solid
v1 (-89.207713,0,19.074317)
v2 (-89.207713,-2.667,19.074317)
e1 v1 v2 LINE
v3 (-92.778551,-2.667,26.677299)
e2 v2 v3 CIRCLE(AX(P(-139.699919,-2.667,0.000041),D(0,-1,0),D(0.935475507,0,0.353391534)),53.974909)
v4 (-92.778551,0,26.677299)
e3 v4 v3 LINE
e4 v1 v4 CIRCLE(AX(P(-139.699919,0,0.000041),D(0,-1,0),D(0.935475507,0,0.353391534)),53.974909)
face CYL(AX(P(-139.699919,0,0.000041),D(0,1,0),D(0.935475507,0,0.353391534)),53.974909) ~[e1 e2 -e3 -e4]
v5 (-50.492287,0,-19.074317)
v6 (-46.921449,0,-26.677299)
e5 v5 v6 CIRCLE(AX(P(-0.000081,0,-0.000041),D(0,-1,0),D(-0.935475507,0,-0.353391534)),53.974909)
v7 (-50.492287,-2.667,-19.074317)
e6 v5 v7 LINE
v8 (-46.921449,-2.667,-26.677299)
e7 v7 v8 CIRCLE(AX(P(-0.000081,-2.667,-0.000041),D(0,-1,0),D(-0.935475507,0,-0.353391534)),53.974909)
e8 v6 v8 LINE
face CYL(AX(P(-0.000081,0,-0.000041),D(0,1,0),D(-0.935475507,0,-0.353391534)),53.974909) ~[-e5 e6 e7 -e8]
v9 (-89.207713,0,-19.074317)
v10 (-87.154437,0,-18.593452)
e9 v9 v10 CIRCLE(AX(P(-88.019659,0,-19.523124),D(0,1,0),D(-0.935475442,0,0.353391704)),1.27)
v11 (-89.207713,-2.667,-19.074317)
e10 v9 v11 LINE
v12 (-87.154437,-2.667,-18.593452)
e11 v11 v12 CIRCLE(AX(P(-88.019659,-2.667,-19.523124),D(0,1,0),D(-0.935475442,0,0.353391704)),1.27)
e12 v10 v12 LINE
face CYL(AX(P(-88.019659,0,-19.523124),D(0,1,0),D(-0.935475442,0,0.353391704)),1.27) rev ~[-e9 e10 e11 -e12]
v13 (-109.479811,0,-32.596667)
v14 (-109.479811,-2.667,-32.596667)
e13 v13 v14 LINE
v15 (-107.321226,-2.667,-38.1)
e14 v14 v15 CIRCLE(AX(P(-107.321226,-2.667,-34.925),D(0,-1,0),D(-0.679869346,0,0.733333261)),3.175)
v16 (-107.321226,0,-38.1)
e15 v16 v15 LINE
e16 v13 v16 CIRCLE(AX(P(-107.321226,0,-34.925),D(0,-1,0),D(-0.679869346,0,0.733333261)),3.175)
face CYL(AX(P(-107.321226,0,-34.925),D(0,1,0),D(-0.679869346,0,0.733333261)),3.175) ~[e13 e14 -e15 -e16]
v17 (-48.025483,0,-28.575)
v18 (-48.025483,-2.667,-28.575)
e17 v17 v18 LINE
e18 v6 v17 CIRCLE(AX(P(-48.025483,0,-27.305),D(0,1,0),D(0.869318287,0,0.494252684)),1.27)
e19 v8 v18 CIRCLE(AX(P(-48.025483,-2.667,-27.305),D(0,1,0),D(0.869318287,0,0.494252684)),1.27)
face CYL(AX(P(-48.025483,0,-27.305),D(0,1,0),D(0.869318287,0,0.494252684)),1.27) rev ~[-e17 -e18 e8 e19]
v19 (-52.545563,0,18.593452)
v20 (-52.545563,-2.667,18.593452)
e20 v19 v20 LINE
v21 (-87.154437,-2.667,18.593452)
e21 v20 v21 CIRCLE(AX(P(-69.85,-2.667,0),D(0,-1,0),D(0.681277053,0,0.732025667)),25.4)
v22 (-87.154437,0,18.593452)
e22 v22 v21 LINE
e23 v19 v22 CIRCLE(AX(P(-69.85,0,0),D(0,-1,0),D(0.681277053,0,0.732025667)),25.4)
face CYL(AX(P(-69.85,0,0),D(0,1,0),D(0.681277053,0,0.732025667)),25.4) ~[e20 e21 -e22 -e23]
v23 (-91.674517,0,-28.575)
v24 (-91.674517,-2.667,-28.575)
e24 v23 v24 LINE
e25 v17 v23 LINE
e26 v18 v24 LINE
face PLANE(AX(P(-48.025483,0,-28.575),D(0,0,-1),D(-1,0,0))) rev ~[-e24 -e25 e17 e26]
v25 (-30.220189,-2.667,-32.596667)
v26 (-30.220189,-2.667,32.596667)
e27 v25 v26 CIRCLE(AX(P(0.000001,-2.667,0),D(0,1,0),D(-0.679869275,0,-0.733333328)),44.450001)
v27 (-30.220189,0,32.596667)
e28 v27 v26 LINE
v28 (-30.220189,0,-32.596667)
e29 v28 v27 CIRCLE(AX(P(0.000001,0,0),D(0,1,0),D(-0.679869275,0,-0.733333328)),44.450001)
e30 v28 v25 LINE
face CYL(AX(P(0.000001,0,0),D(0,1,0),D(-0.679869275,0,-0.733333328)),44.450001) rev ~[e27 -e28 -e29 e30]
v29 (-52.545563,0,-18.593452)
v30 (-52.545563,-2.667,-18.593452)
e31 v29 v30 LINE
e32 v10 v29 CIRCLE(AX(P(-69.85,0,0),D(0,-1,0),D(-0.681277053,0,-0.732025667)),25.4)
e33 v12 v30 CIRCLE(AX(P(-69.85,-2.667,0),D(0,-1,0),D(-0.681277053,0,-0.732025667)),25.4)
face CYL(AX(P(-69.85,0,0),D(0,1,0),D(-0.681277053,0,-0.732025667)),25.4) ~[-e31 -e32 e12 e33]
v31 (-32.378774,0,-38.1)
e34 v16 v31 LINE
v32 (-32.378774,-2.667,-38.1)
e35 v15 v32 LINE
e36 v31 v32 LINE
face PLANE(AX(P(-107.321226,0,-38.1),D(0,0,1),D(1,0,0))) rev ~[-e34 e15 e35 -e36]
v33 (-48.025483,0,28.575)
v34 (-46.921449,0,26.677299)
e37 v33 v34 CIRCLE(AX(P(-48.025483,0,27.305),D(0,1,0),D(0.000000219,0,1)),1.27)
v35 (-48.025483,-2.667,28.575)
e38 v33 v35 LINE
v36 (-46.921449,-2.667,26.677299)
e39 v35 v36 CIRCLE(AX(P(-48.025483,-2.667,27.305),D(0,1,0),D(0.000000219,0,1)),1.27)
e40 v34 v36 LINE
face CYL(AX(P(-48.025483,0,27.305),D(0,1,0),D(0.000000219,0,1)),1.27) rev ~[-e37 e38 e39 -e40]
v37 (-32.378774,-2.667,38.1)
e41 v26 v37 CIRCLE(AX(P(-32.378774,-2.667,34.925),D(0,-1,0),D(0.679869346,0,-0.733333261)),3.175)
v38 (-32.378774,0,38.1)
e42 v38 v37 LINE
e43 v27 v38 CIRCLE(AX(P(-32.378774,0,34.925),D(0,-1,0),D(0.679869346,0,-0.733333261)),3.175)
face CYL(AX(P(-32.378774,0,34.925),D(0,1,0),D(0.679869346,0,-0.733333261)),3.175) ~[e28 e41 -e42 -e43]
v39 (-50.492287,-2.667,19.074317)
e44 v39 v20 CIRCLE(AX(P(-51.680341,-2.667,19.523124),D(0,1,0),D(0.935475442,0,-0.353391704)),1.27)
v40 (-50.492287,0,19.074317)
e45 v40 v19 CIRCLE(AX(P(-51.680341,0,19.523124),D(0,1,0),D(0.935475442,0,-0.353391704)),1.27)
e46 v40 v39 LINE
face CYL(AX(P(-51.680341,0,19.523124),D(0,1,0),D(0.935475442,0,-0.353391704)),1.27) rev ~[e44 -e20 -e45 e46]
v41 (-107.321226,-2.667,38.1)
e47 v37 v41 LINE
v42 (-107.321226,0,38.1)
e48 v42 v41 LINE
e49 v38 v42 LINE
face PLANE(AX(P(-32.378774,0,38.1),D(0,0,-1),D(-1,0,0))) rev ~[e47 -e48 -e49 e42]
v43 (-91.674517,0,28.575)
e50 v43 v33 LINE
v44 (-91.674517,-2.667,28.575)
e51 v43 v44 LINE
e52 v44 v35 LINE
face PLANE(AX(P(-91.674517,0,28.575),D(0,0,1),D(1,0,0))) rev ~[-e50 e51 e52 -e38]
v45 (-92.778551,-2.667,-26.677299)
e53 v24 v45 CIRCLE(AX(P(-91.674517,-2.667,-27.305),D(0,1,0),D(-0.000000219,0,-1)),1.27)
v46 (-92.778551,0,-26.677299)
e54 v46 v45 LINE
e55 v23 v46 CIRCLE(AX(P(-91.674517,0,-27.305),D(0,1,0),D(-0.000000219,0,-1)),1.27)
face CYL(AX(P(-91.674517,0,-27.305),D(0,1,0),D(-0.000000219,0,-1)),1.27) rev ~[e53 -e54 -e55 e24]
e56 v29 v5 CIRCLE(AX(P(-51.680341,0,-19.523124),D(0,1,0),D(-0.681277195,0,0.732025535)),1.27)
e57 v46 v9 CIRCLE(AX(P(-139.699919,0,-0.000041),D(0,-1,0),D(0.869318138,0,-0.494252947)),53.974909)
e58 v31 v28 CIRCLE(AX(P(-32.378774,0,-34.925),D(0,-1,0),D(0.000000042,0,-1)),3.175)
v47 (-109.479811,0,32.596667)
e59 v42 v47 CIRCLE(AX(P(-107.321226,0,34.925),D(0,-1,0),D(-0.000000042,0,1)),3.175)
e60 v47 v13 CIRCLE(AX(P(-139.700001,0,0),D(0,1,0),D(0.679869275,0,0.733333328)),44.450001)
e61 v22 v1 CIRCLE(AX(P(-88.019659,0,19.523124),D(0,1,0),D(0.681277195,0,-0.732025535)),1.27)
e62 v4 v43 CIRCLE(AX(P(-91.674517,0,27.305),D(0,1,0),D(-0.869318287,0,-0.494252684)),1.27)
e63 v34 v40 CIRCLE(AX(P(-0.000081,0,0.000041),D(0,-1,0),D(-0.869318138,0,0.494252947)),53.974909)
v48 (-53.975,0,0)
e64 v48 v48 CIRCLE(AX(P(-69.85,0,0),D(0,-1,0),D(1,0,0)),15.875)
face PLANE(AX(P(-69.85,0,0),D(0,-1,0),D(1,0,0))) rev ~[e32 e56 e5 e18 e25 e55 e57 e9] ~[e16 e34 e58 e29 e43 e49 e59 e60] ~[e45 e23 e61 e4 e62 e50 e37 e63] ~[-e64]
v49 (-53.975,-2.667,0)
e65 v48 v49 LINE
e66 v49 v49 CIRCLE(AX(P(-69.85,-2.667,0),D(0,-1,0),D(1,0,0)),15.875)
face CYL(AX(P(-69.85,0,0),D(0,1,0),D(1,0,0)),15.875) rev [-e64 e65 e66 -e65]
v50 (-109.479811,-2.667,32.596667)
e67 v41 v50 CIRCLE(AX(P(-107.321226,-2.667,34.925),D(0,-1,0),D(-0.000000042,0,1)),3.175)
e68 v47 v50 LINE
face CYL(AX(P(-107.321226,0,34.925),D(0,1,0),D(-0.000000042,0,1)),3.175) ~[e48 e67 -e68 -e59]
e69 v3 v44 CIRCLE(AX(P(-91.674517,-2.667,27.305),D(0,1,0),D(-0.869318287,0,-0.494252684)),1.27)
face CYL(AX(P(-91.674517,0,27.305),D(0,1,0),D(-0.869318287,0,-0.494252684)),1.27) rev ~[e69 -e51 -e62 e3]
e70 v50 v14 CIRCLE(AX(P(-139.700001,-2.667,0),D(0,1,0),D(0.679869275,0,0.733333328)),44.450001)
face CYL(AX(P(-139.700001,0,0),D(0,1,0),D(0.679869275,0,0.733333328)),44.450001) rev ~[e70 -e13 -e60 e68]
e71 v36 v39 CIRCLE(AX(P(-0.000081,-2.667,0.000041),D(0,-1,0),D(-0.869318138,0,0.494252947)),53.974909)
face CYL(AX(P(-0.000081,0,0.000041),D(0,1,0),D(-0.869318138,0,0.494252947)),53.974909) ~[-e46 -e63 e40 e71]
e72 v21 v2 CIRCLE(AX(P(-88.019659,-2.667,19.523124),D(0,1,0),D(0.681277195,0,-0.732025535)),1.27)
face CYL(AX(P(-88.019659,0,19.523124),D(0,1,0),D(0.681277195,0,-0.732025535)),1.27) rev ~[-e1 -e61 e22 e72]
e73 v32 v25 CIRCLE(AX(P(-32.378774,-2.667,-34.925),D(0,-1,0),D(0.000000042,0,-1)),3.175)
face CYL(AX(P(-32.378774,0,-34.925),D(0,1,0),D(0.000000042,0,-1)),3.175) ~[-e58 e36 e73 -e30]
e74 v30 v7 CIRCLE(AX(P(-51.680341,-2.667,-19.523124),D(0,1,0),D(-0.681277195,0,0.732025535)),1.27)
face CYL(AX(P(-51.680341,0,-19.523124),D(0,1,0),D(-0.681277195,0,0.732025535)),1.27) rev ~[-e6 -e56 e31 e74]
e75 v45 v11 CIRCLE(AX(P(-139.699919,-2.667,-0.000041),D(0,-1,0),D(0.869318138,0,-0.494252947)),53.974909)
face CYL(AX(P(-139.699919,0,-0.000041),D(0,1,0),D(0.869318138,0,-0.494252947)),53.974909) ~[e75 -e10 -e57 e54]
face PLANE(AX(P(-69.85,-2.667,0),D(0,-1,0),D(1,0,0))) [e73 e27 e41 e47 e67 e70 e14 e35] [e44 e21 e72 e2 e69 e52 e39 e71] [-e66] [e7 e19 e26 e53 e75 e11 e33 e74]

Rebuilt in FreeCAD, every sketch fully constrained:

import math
import FreeCAD as App
import Part
import Sketcher

V = App.Vector
Q = App.Units.Quantity

doc = App.newDocument("Part")
body = doc.addObject("PartDesign::Body", "Body")

# Sketch on XZ plane
sketch1 = body.newObject("Sketcher::SketchObject", "Sketch")
sketch1.AttachmentSupport = (doc.getObject("XZ_Plane"), [""])
sketch1.MapMode = "FlatFace"
sketch1.addGeometry([
    Part.LineSegment(V(-32.378774, 38.1, 0), V(-107.321226, 38.1, 0)),  # 0
    Part.ArcOfCircle(Part.Circle(V(-107.321226, 34.925, 0), V(0, 0, 1), 3.175), math.radians(90.000002), math.radians(227.166566)),  # 1
    Part.ArcOfCircle(Part.Circle(V(-139.700001, 0, 0), V(0, 0, 1), 44.450001), math.radians(-47.166571), math.radians(47.166571)),  # 2
    Part.ArcOfCircle(Part.Circle(V(-107.321226, -34.925, 0), V(0, 0, 1), 3.175), math.radians(132.833434), math.radians(269.999998)),  # 3
    Part.LineSegment(V(-107.321226, -38.1, 0), V(-32.378774, -38.1, 0)),  # 4
    Part.ArcOfCircle(Part.Circle(V(-32.378774, -34.925, 0), V(0, 0, 1), 3.175), math.radians(-89.999998), math.radians(47.166566)),  # 5
    Part.ArcOfCircle(Part.Circle(V(0.000001, 0, 0), V(0, 0, 1), 44.450001), math.radians(132.833429), math.radians(227.166571)),  # 6
    Part.ArcOfCircle(Part.Circle(V(-32.378774, 34.925, 0), V(0, 0, 1), 3.175), math.radians(-47.166566), math.radians(89.999998)),  # 7
    Part.ArcOfCircle(Part.Circle(V(-88.019659, -19.523124, 0), V(0, 0, 1), 1.27), math.radians(47.056472), math.radians(159.305092)),  # 8
    Part.ArcOfCircle(Part.Circle(V(-69.85, 0, 0), V(0, 0, 1), 25.4), math.radians(-132.943517), math.radians(-47.056483)),  # 9
    Part.ArcOfCircle(Part.Circle(V(-51.680341, -19.523124, 0), V(0, 0, 1), 1.27), math.radians(20.694908), math.radians(132.943528)),  # 10
    Part.ArcOfCircle(Part.Circle(V(-0.000081, -0.000041, 0), V(0, 0, 1), 53.974909), math.radians(-159.305103), math.radians(-150.379499)),  # 11
    Part.ArcOfCircle(Part.Circle(V(-48.025483, -27.305, 0), V(0, 0, 1), 1.27), math.radians(-89.999987), math.radians(29.620484)),  # 12
    Part.LineSegment(V(-48.025483, -28.575, 0), V(-91.674517, -28.575, 0)),  # 13
    Part.ArcOfCircle(Part.Circle(V(-91.674517, -27.305, 0), V(0, 0, 1), 1.27), math.radians(150.379516), math.radians(269.999987)),  # 14
    Part.ArcOfCircle(Part.Circle(V(-139.699919, -0.000041, 0), V(0, 0, 1), 53.974909), math.radians(-29.620501), math.radians(-20.694897)),  # 15
    Part.ArcOfCircle(Part.Circle(V(-139.699919, 0.000041, 0), V(0, 0, 1), 53.974909), math.radians(20.694897), math.radians(29.620501)),  # 16
    Part.ArcOfCircle(Part.Circle(V(-91.674517, 27.305, 0), V(0, 0, 1), 1.27), math.radians(90.000013), math.radians(209.620484)),  # 17
    Part.LineSegment(V(-91.674517, 28.575, 0), V(-48.025483, 28.575, 0)),  # 18
    Part.ArcOfCircle(Part.Circle(V(-48.025483, 27.305, 0), V(0, 0, 1), 1.27), math.radians(-29.620484), math.radians(89.999987)),  # 19
    Part.ArcOfCircle(Part.Circle(V(-0.000081, 0.000041, 0), V(0, 0, 1), 53.974909), math.radians(150.379499), math.radians(159.305103)),  # 20
    Part.ArcOfCircle(Part.Circle(V(-51.680341, 19.523124, 0), V(0, 0, 1), 1.27), math.radians(-132.943528), math.radians(-20.694908)),  # 21
    Part.ArcOfCircle(Part.Circle(V(-69.85, 0, 0), V(0, 0, 1), 25.4), math.radians(47.056483), math.radians(132.943517)),  # 22
    Part.ArcOfCircle(Part.Circle(V(-88.019659, 19.523124, 0), V(0, 0, 1), 1.27), math.radians(-159.305092), math.radians(-47.056472)),  # 23
    Part.Circle(V(-69.85, 0, 0), V(0, 0, 1), 15.875),  # 24
], False)
sketch1.addConstraint([
    Sketcher.Constraint("Tangent", 0, 2, 1, 1),
    Sketcher.Constraint("Tangent", 1, 2, 2, 2),
    Sketcher.Constraint("Tangent", 2, 1, 3, 1),
    Sketcher.Constraint("Tangent", 3, 2, 4, 1),
    Sketcher.Constraint("Tangent", 4, 2, 5, 1),
    Sketcher.Constraint("Tangent", 5, 2, 6, 2),
    Sketcher.Constraint("Tangent", 6, 1, 7, 1),
    Sketcher.Constraint("Tangent", 7, 2, 0, 1),
    Sketcher.Constraint("Tangent", 8, 1, 9, 1),
    Sketcher.Constraint("Tangent", 9, 2, 10, 2),
    Sketcher.Constraint("Tangent", 10, 1, 11, 1),
    Sketcher.Constraint("Tangent", 11, 2, 12, 2),
    Sketcher.Constraint("Tangent", 12, 1, 13, 1),
    Sketcher.Constraint("Tangent", 13, 2, 14, 2),
    Sketcher.Constraint("Tangent", 14, 1, 15, 1),
    Sketcher.Constraint("Tangent", 15, 2, 8, 2),
    Sketcher.Constraint("Tangent", 16, 2, 17, 2),
    Sketcher.Constraint("Tangent", 17, 1, 18, 1),
    Sketcher.Constraint("Tangent", 18, 2, 19, 2),
    Sketcher.Constraint("Tangent", 19, 1, 20, 1),
    Sketcher.Constraint("Tangent", 20, 2, 21, 2),
    Sketcher.Constraint("Tangent", 21, 1, 22, 1),
    Sketcher.Constraint("Tangent", 22, 2, 23, 2),
    Sketcher.Constraint("Tangent", 23, 1, 16, 1),
    Sketcher.Constraint("Horizontal", 0),
    Sketcher.Constraint("Horizontal", 4),
    Sketcher.Constraint("Horizontal", 13),
    Sketcher.Constraint("Horizontal", 18),
    Sketcher.Constraint("Coincident", 6, 3, -1, 1),
    Sketcher.Constraint("Coincident", 22, 3, 9, 3),
    Sketcher.Constraint("Coincident", 24, 3, 9, 3),
    Sketcher.Constraint("Equal", 1, 3),
    Sketcher.Constraint("Equal", 3, 5),
    Sketcher.Constraint("Equal", 2, 6),
    Sketcher.Constraint("Equal", 5, 7),
    Sketcher.Constraint("Equal", 8, 10),
    Sketcher.Constraint("Equal", 10, 12),
    Sketcher.Constraint("Equal", 12, 14),
    Sketcher.Constraint("Equal", 11, 15),
    Sketcher.Constraint("Equal", 15, 16),
    Sketcher.Constraint("Equal", 14, 17),
    Sketcher.Constraint("Equal", 17, 19),
    Sketcher.Constraint("Equal", 16, 20),
    Sketcher.Constraint("Equal", 19, 21),
    Sketcher.Constraint("Equal", 9, 22),
    Sketcher.Constraint("Equal", 21, 23),
    Sketcher.Constraint("Symmetric", 1, 3, 3, 3, -1),
    Sketcher.Constraint("Symmetric", 15, 3, 16, 3, -1),
    Sketcher.Constraint("Symmetric", 12, 3, 19, 3, -1),
    Sketcher.Constraint("Symmetric", 10, 3, 21, 3, -1),
    Sketcher.Constraint("Horizontal", 8, 3, 10, 3),
    Sketcher.Constraint("Horizontal", 11, 3, 15, 3),
    Sketcher.Constraint("Radius", 9, Q("1 in")),
    Sketcher.Constraint("Diameter", 24, Q("1.25 in")),
    Sketcher.Constraint("Radius", 2, Q("1.75 in")),
    Sketcher.Constraint("Radius", 8, Q("0.05 in")),
    Sketcher.Constraint("Radius", 1, Q("0.125 in")),
    Sketcher.Constraint("DistanceX", 2, 3, -1, 1, Q("5.5 in")),
    Sketcher.Constraint("DistanceY", -1, 1, 0, 2, Q("1.5 in")),
    Sketcher.Constraint("DistanceY", 5, 3, 12, 3, Q("0.3 in")),
    Sketcher.Constraint("DistanceX", 9, 3, -1, 1, Q("2.75 in")),
    Sketcher.Constraint("Radius", 11, Q("53.974909 mm")),
    Sketcher.Constraint("DistanceY", 14, 1, -1, 1, Q("26.677299 mm")),
    Sketcher.Constraint("DistanceX", 10, 1, 5, 2, Q("20.272098 mm")),
])
pad1 = body.newObject("PartDesign::Pad", "Pad")
pad1.Profile = sketch1
pad1.Length = Q("0.105 in")

doc.recompute()
